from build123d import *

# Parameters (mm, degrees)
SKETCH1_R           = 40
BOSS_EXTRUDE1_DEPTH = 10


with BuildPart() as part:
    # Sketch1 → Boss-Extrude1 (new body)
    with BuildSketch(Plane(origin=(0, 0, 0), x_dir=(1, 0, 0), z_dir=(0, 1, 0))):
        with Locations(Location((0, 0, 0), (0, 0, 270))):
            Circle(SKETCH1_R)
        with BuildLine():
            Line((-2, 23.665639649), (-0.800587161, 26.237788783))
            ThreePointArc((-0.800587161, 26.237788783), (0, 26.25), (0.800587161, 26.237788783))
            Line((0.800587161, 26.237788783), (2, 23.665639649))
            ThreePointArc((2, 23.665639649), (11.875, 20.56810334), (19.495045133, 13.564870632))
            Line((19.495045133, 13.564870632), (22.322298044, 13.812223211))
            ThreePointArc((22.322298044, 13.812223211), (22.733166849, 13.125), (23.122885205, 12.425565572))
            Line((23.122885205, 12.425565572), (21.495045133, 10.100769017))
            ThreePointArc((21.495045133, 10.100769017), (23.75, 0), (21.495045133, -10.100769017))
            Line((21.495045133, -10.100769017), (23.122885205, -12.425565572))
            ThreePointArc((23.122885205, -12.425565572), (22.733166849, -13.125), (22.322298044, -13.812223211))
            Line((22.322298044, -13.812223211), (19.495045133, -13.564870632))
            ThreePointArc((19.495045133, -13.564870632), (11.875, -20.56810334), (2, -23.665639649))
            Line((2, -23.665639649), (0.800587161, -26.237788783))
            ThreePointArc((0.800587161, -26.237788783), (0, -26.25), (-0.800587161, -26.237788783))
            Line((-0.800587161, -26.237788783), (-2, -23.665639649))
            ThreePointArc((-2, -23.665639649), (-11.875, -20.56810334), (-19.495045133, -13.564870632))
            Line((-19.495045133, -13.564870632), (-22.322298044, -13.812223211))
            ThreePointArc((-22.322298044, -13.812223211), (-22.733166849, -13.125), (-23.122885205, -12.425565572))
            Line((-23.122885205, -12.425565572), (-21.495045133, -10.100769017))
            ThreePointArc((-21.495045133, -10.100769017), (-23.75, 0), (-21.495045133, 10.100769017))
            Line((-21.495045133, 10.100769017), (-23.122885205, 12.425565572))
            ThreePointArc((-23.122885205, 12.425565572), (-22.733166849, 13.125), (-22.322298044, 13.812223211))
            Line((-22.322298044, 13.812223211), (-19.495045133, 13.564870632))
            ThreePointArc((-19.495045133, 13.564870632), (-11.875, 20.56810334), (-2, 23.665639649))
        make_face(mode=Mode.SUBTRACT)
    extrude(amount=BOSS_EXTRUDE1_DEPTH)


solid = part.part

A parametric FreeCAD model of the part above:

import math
import FreeCAD as App
import Part
import Sketcher

V = App.Vector
Q = App.Units.Quantity

doc = App.newDocument("Part")
params = doc.addObject("Spreadsheet::Sheet", "Params")
for row, (alias, value) in enumerate([
    ("sketch1_diameter", "80 mm"),
    ("sketch1_radius", "23.75 mm"),
    ("sketch1_radius2", "26.250001 mm"),
    ("pad1_length", "10 mm"),
], start=1):
    params.set(f"A{row}", alias)
    params.set(f"B{row}", "=" + value)
    params.setAlias(f"B{row}", alias)

body = doc.addObject("PartDesign::Body", "Body")

# Sketch on XZ plane
sketch1 = doc.addObject("Sketcher::SketchObject", "Sketch")
body.addObject(sketch1)
sketch1.AttachmentSupport = (doc.XZ_Plane, [""])
sketch1.MapMode = "FlatFace"
sketch1.addGeometry([
    Part.Circle(V(0, 0, 0), V(0, 0, 1), 40),  # 0
    Part.ArcOfCircle(Part.Circle(V(0, 0, 0), V(0, 0, 1), 23.7), math.radians(-145), math.radians(-95)),  # 1
    Part.LineSegment(V(-2, -23.7, 0), V(-0.8, -26.2, 0)),  # 2
    Part.ArcOfCircle(Part.Circle(V(0, 0, 0), V(0, 0, 1), 26.3), math.radians(-91.75), math.radians(-88.25)),  # 3
    Part.LineSegment(V(0.8, -26.2, 0), V(2, -23.7, 0)),  # 4
    Part.ArcOfCircle(Part.Circle(V(0, 0, 0), V(0, 0, 1), 23.7), math.radians(-85), math.radians(-35)),  # 5
    Part.LineSegment(V(19.5, -13.6, 0), V(22.3, -13.8, 0)),  # 6
    Part.ArcOfCircle(Part.Circle(V(0, 0, 0), V(0, 0, 1), 26.3), math.radians(-31.75), math.radians(-28.25)),  # 7
    Part.LineSegment(V(23.1, -12.4, 0), V(21.5, -10.1, 0)),  # 8
    Part.ArcOfCircle(Part.Circle(V(0, 0, 0), V(0, 0, 1), 23.8), math.radians(-25), math.radians(25)),  # 9
    Part.LineSegment(V(21.5, 10.1, 0), V(23.1, 12.4, 0)),  # 10
    Part.ArcOfCircle(Part.Circle(V(0, 0, 0), V(0, 0, 1), 26.3), math.radians(28.25), math.radians(31.75)),  # 11
    Part.LineSegment(V(22.3, 13.8, 0), V(19.5, 13.6, 0)),  # 12
    Part.ArcOfCircle(Part.Circle(V(0, 0, 0), V(0, 0, 1), 23.7), math.radians(35), math.radians(85)),  # 13
    Part.LineSegment(V(2, 23.7, 0), V(0.8, 26.2, 0)),  # 14
    Part.ArcOfCircle(Part.Circle(V(0, 0, 0), V(0, 0, 1), 26.3), math.radians(88.25), math.radians(91.75)),  # 15
    Part.LineSegment(V(-0.8, 26.2, 0), V(-2, 23.7, 0)),  # 16
    Part.ArcOfCircle(Part.Circle(V(0, 0, 0), V(0, 0, 1), 23.7), math.radians(95), math.radians(145)),  # 17
    Part.LineSegment(V(-19.5, 13.6, 0), V(-22.3, 13.8, 0)),  # 18
    Part.ArcOfCircle(Part.Circle(V(0, 0, 0), V(0, 0, 1), 26.3), math.radians(148.25), math.radians(151.75)),  # 19
    Part.LineSegment(V(-23.1, 12.4, 0), V(-21.5, 10.1, 0)),  # 20
    Part.ArcOfCircle(Part.Circle(V(0, 0, 0), V(0, 0, 1), 23.8), math.radians(155), math.radians(205)),  # 21
    Part.LineSegment(V(-21.5, -10.1, 0), V(-23.1, -12.4, 0)),  # 22
    Part.ArcOfCircle(Part.Circle(V(0, 0, 0), V(0, 0, 1), 26.3), math.radians(-151.75), math.radians(-148.25)),  # 23
    Part.LineSegment(V(-22.3, -13.8, 0), V(-19.5, -13.6, 0)),  # 24
], False)
sketch1.addConstraint([
    Sketcher.Constraint("Coincident", 1, 2, 2, 1),
    Sketcher.Constraint("Coincident", 2, 2, 3, 1),
    Sketcher.Constraint("Coincident", 3, 2, 4, 1),
    Sketcher.Constraint("Coincident", 4, 2, 5, 1),
    Sketcher.Constraint("Coincident", 5, 2, 6, 1),
    Sketcher.Constraint("Coincident", 6, 2, 7, 1),
    Sketcher.Constraint("Coincident", 7, 2, 8, 1),
    Sketcher.Constraint("Coincident", 8, 2, 9, 1),
    Sketcher.Constraint("Coincident", 9, 2, 10, 1),
    Sketcher.Constraint("Coincident", 10, 2, 11, 1),
    Sketcher.Constraint("Coincident", 11, 2, 12, 1),
    Sketcher.Constraint("Coincident", 12, 2, 13, 1),
    Sketcher.Constraint("Coincident", 13, 2, 14, 1),
    Sketcher.Constraint("Coincident", 14, 2, 15, 1),
    Sketcher.Constraint("Coincident", 15, 2, 16, 1),
    Sketcher.Constraint("Coincident", 16, 2, 17, 1),
    Sketcher.Constraint("Coincident", 17, 2, 18, 1),
    Sketcher.Constraint("Coincident", 18, 2, 19, 1),
    Sketcher.Constraint("Coincident", 19, 2, 20, 1),
    Sketcher.Constraint("Coincident", 20, 2, 21, 1),
    Sketcher.Constraint("Coincident", 21, 2, 22, 1),
    Sketcher.Constraint("Coincident", 22, 2, 23, 1),
    Sketcher.Constraint("Coincident", 23, 2, 24, 1),
    Sketcher.Constraint("Coincident", 24, 2, 1, 1),
    Sketcher.Constraint("Coincident", 0, 3, -1, 1),
    Sketcher.Constraint("Coincident", 1, 3, -1, 1),
    Sketcher.Constraint("Coincident", 3, 3, -1, 1),
    Sketcher.Constraint("Coincident", 5, 3, -1, 1),
    Sketcher.Constraint("Coincident", 7, 3, -1, 1),
    Sketcher.Constraint("Coincident", 9, 3, -1, 1),
    Sketcher.Constraint("Coincident", 11, 3, -1, 1),
    Sketcher.Constraint("Coincident", 13, 3, -1, 1),
    Sketcher.Constraint("Coincident", 15, 3, -1, 1),
    Sketcher.Constraint("Coincident", 17, 3, -1, 1),
    Sketcher.Constraint("Coincident", 19, 3, -1, 1),
    Sketcher.Constraint("Coincident", 21, 3, -1, 1),
    Sketcher.Constraint("Coincident", 23, 3, -1, 1),
    Sketcher.Constraint("Equal", 1, 5),
    Sketcher.Constraint("Equal", 3, 7),
    Sketcher.Constraint("Equal", 5, 9),
    Sketcher.Constraint("Equal", 7, 11),
    Sketcher.Constraint("Equal", 9, 13),
    Sketcher.Constraint("Equal", 11, 15),
    Sketcher.Constraint("Equal", 13, 17),
    Sketcher.Constraint("Equal", 15, 19),
    Sketcher.Constraint("Equal", 17, 21),
    Sketcher.Constraint("Equal", 19, 23),
    Sketcher.Constraint("Parallel", 2, 14),
    Sketcher.Constraint("Parallel", 4, 16),
    Sketcher.Constraint("Parallel", 6, 18),
    Sketcher.Constraint("Parallel", 8, 20),
    Sketcher.Constraint("Parallel", 10, 22),
    Sketcher.Constraint("Parallel", 12, 24),
    Sketcher.Constraint("Horizontal", 2, 2, 3, 2),
    Sketcher.Constraint("Horizontal", 1, 2, 4, 2),
    Sketcher.Constraint("Horizontal", 14, 2, 15, 2),
    Sketcher.Constraint("Horizontal", 12, 2, 17, 2),
    Sketcher.Constraint("Horizontal", 11, 2, 18, 2),
    Sketcher.Constraint("Horizontal", 10, 2, 19, 2),
    Sketcher.Constraint("Horizontal", 9, 2, 20, 2),
    Sketcher.Constraint("Horizontal", 8, 2, 21, 2),
    Sketcher.Constraint("Horizontal", 6, 2, 23, 2),
    Sketcher.Constraint("Vertical", 8, 2, 9, 2),
    Sketcher.Constraint("Vertical", 6, 2, 11, 2),
    Sketcher.Constraint("Vertical", 4, 2, 13, 2),
    Sketcher.Constraint("Equal", 4, 6),
    Sketcher.Constraint("Equal", 6, 8),
    Sketcher.Constraint("Diameter", 0, Q("80 mm")),
    Sketcher.Constraint("Angle", 2, Q("-65 deg")),
    Sketcher.Constraint("Angle", 6, Q("-5 deg")),
    Sketcher.Constraint("Angle", 8, Q("125 deg")),
    Sketcher.Constraint("Radius", 1, Q("23.75 mm")),
    Sketcher.Constraint("Radius", 3, Q("26.250001 mm")),
    Sketcher.Constraint("DistanceX", 1, 2, -1, 1, Q("2 mm")),
])
sketch1.setExpression("Constraints[67]", "Params.sketch1_diameter")
sketch1.setExpression("Constraints[71]", "Params.sketch1_radius")
sketch1.setExpression("Constraints[72]", "Params.sketch1_radius2")
pad1 = doc.addObject("PartDesign::Pad", "Pad")
body.addObject(pad1)
pad1.Profile = sketch1
pad1.setExpression("Length", "Params.pad1_length")
pad1.Reversed = True

doc.recompute()
